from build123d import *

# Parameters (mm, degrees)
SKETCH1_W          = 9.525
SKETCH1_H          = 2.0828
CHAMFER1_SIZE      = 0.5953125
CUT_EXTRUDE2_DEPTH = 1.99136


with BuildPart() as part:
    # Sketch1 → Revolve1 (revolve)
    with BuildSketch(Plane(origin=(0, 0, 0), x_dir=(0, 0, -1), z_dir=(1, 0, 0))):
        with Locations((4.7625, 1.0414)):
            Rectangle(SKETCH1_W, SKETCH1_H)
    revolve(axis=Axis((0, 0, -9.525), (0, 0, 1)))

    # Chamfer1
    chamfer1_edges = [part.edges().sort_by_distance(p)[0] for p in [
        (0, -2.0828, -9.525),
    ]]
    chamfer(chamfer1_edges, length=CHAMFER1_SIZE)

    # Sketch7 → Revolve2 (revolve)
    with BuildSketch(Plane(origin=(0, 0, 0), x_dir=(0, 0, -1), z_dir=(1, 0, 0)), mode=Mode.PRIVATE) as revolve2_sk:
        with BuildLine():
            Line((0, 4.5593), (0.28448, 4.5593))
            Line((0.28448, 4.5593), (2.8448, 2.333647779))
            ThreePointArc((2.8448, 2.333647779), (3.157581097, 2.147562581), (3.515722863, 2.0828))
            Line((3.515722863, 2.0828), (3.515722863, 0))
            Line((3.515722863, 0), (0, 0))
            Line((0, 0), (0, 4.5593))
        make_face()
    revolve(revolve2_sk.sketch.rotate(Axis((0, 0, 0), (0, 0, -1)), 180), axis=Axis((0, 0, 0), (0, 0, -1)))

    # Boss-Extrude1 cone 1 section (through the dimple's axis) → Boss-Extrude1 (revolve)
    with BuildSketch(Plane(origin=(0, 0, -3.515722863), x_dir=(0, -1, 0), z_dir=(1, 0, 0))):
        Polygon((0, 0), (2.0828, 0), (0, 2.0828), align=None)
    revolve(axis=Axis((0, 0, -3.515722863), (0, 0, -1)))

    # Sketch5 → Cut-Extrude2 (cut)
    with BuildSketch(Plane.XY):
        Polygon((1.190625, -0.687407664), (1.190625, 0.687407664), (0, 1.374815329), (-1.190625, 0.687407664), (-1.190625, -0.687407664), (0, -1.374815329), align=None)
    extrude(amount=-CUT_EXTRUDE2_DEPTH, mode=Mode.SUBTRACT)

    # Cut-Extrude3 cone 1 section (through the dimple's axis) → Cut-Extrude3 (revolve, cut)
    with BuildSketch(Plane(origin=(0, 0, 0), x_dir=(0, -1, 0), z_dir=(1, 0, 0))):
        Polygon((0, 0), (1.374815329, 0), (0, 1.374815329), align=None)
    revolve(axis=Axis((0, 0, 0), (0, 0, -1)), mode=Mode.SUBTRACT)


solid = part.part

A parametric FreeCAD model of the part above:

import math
import FreeCAD as App
import Part
import Sketcher

V = App.Vector
Q = App.Units.Quantity


def edges_at(feature, points):
    """Names of the edges that pass closest to the given points."""
    edges = feature.Shape.Edges
    near = lambda p: min(range(len(edges)), key=lambda i: edges[i].distToShape(Part.Vertex(*p))[0])
    return sorted({f"Edge{near(p) + 1}" for p in points})

doc = App.newDocument("Part")
body = doc.addObject("PartDesign::Body", "Body")

# Sketch on YZ plane
sketch1 = doc.addObject("Sketcher::SketchObject", "Sketch")
body.addObject(sketch1)
sketch1.AttachmentSupport = (doc.YZ_Plane, [""])
sketch1.MapMode = "FlatFace"
sketch1.addGeometry(Part.LineSegment(V(2.1, 0, 0), V(0, 0, 0)), False)
sketch1.addGeometry(Part.LineSegment(V(0, 0, 0), V(0, -9.5, 0)), False)
sketch1.addGeometry(Part.LineSegment(V(0, -9.5, 0), V(2.1, -9.5, 0)), False)
sketch1.addGeometry(Part.LineSegment(V(2.1, -9.5, 0), V(2.1, 0, 0)), False)
sketch1.addConstraint(Sketcher.Constraint("Coincident", 0, 2, 1, 1))
sketch1.addConstraint(Sketcher.Constraint("Coincident", 1, 2, 2, 1))
sketch1.addConstraint(Sketcher.Constraint("Coincident", 2, 2, 3, 1))
sketch1.addConstraint(Sketcher.Constraint("Coincident", 3, 2, 0, 1))
sketch1.addConstraint(Sketcher.Constraint("Horizontal", 0))
sketch1.addConstraint(Sketcher.Constraint("Vertical", 1))
sketch1.addConstraint(Sketcher.Constraint("Horizontal", 2))
sketch1.addConstraint(Sketcher.Constraint("Vertical", 3))
sketch1.addConstraint(Sketcher.Constraint("Coincident", 0, 2, -1, 1))
sketch1.addConstraint(Sketcher.Constraint("DistanceX", 0, 2, 0, 1, Q("0.082 in")))
sketch1.addConstraint(Sketcher.Constraint("DistanceY", 1, 2, 1, 1, Q("0.375 in")))
revolution = doc.addObject("PartDesign::Revolution", "Revolution")
body.addObject(revolution)
revolution.Profile = sketch1
revolution.ReferenceAxis = (sketch1, ["V_Axis"])
revolution.Angle = 360
doc.recompute()

chamfer = doc.addObject("PartDesign::Chamfer", "Chamfer")
body.addObject(chamfer)
chamfer.Base = (revolution, edges_at(revolution, [(0, -2.083, -9.525)]))
chamfer.Size = 0.595313

# Sketch on YZ plane
sketch2 = doc.addObject("Sketcher::SketchObject", "Sketch001")
body.addObject(sketch2)
sketch2.AttachmentSupport = (doc.YZ_Plane, [""])
sketch2.MapMode = "FlatFace"
sketch2.addGeometry(Part.LineSegment(V(4.56, -0.28, 0), V(4.56, 0, 0)), False)
sketch2.addGeometry(Part.LineSegment(V(4.56, 0, 0), V(0, 0, 0)), False)
sketch2.addGeometry(Part.LineSegment(V(0, 0, 0), V(0, -3.52, 0)), False)
sketch2.addGeometry(Part.LineSegment(V(0, -3.52, 0), V(2.08, -3.52, 0)), False)
sketch2.addGeometry(Part.ArcOfCircle(Part.Circle(V(3.11, -3.52, 0), V(0, 0, 1), 1.02), math.radians(139), math.radians(180)), False)
sketch2.addGeometry(Part.LineSegment(V(2.33, -2.84, 0), V(4.56, -0.28, 0)), False)
sketch2.addConstraint(Sketcher.Constraint("Coincident", 0, 2, 1, 1))
sketch2.addConstraint(Sketcher.Constraint("Coincident", 1, 2, 2, 1))
sketch2.addConstraint(Sketcher.Constraint("Coincident", 2, 2, 3, 1))
sketch2.addConstraint(Sketcher.Constraint("Coincident", 3, 2, 4, 2))
sketch2.addConstraint(Sketcher.Constraint("Tangent", 4, 1, 5, 1))
sketch2.addConstraint(Sketcher.Constraint("Coincident", 5, 2, 0, 1))
sketch2.addConstraint(Sketcher.Constraint("Vertical", 0))
sketch2.addConstraint(Sketcher.Constraint("Horizontal", 1))
sketch2.addConstraint(Sketcher.Constraint("Vertical", 2))
sketch2.addConstraint(Sketcher.Constraint("Horizontal", 3))
sketch2.addConstraint(Sketcher.Constraint("Coincident", 1, 2, -1, 1))
sketch2.addConstraint(Sketcher.Constraint("Horizontal", 4, 3, 2, 2))
sketch2.addConstraint(Sketcher.Constraint("Angle", 5, Q("49 deg")))
sketch2.addConstraint(Sketcher.Constraint("DistanceX", 3, 1, 3, 2, Q("0.082 in")))
sketch2.addConstraint(Sketcher.Constraint("DistanceX", 1, 2, 1, 1, Q("0.1795 in")))
sketch2.addConstraint(Sketcher.Constraint("DistanceY", 0, 1, 0, 2, Q("0.0112 in")))
sketch2.addConstraint(Sketcher.Constraint("DistanceY", 4, 1, -1, 1, Q("0.112 in")))
revolution2 = doc.addObject("PartDesign::Revolution", "Revolution001")
body.addObject(revolution2)
revolution2.Profile = sketch2
revolution2.ReferenceAxis = (sketch2, ["V_Axis"])
revolution2.Angle = 360

# Sketch on YZ plane
sketch3 = doc.addObject("Sketcher::SketchObject", "Sketch002")
body.addObject(sketch3)
sketch3.AttachmentSupport = (doc.YZ_Plane, [""])
sketch3.MapMode = "FlatFace"
sketch3.addGeometry(Part.LineSegment(V(0, -3.5, 0), V(-2.1, -3.5, 0)), False)
sketch3.addGeometry(Part.LineSegment(V(-2.1, -3.5, 0), V(0, -5.6, 0)), False)
sketch3.addGeometry(Part.LineSegment(V(0, -5.6, 0), V(0, -3.5, 0)), False)
sketch3.addConstraint(Sketcher.Constraint("Coincident", 0, 2, 1, 1))
sketch3.addConstraint(Sketcher.Constraint("Coincident", 1, 2, 2, 1))
sketch3.addConstraint(Sketcher.Constraint("Coincident", 2, 2, 0, 1))
sketch3.addConstraint(Sketcher.Constraint("Horizontal", 0))
sketch3.addConstraint(Sketcher.Constraint("Vertical", 2))
sketch3.addConstraint(Sketcher.Constraint("PointOnObject", 1, 2, -2))
sketch3.addConstraint(Sketcher.Constraint("Equal", 0, 2))
sketch3.addConstraint(Sketcher.Constraint("DistanceX", 0, 2, 0, 1, Q("0.082 in")))
sketch3.addConstraint(Sketcher.Constraint("DistanceY", 0, 2, -1, 1, 3.515723))
revolution3 = doc.addObject("PartDesign::Revolution", "Revolution002")
body.addObject(revolution3)
revolution3.Profile = sketch3
revolution3.ReferenceAxis = (sketch3, ["V_Axis"])
revolution3.Angle = 360

# Sketch on XY plane
sketch4 = doc.addObject("Sketcher::SketchObject", "Sketch003")
body.addObject(sketch4)
sketch4.AttachmentSupport = (doc.XY_Plane, [""])
sketch4.MapMode = "FlatFace"
sketch4.addGeometry(Part.LineSegment(V(1.2, -0.7, 0), V(1.2, 0.7, 0)), False)
sketch4.addGeometry(Part.LineSegment(V(1.2, 0.7, 0), V(0, 1.4, 0)), False)
sketch4.addGeometry(Part.LineSegment(V(0, 1.4, 0), V(-1.2, 0.7, 0)), False)
sketch4.addGeometry(Part.LineSegment(V(-1.2, 0.7, 0), V(-1.2, -0.7, 0)), False)
sketch4.addGeometry(Part.LineSegment(V(-1.2, -0.7, 0), V(0, -1.4, 0)), False)
sketch4.addGeometry(Part.LineSegment(V(0, -1.4, 0), V(1.2, -0.7, 0)), False)
sketch4.addConstraint(Sketcher.Constraint("Coincident", 0, 2, 1, 1))
sketch4.addConstraint(Sketcher.Constraint("Coincident", 1, 2, 2, 1))
sketch4.addConstraint(Sketcher.Constraint("Coincident", 2, 2, 3, 1))
sketch4.addConstraint(Sketcher.Constraint("Coincident", 3, 2, 4, 1))
sketch4.addConstraint(Sketcher.Constraint("Coincident", 4, 2, 5, 1))
sketch4.addConstraint(Sketcher.Constraint("Coincident", 5, 2, 0, 1))
sketch4.addConstraint(Sketcher.Constraint("Vertical", 0))
sketch4.addConstraint(Sketcher.Constraint("Vertical", 3))
sketch4.addConstraint(Sketcher.Constraint("Symmetric", 0, 2, 3, 2, -1, 1))
sketch4.addConstraint(Sketcher.Constraint("Symmetric", 1, 2, 4, 2, -1, 1))
sketch4.addConstraint(Sketcher.Constraint("PointOnObject", 1, 2, -2))
sketch4.addConstraint(Sketcher.Constraint("Parallel", 2, 5))
sketch4.addConstraint(Sketcher.Constraint("Horizontal", 0, 2, 2, 2))
sketch4.addConstraint(Sketcher.Constraint("Angle", 1, Q("150 deg")))
sketch4.addConstraint(Sketcher.Constraint("DistanceX", -1, 1, 0, 2, Q("0.046875 in")))
sketch4.addConstraint(Sketcher.Constraint("DistanceY", 0, 1, 0, 2, 1.374815))
pocket1 = doc.addObject("PartDesign::Pocket", "Pocket")
body.addObject(pocket1)
pocket1.Profile = sketch4
pocket1.Length = Q("0.0784 in")

# Sketch on YZ plane
sketch5 = doc.addObject("Sketcher::SketchObject", "Sketch004")
body.addObject(sketch5)
sketch5.AttachmentSupport = (doc.YZ_Plane, [""])
sketch5.MapMode = "FlatFace"
sketch5.addGeometry(Part.LineSegment(V(0, 0, 0), V(-1.4, 0, 0)), False)
sketch5.addGeometry(Part.LineSegment(V(-1.4, 0, 0), V(0, -1.4, 0)), False)
sketch5.addGeometry(Part.LineSegment(V(0, -1.4, 0), V(0, 0, 0)), False)
sketch5.addConstraint(Sketcher.Constraint("Coincident", 0, 2, 1, 1))
sketch5.addConstraint(Sketcher.Constraint("Coincident", 1, 2, 2, 1))
sketch5.addConstraint(Sketcher.Constraint("Coincident", 2, 2, 0, 1))
sketch5.addConstraint(Sketcher.Constraint("Horizontal", 0))
sketch5.addConstraint(Sketcher.Constraint("Vertical", 2))
sketch5.addConstraint(Sketcher.Constraint("Coincident", 2, 2, -1, 1))
sketch5.addConstraint(Sketcher.Constraint("Equal", 0, 2))
sketch5.addConstraint(Sketcher.Constraint("DistanceX", 0, 2, 0, 1, 1.374815))
groove = doc.addObject("PartDesign::Groove", "Groove")
body.addObject(groove)
groove.Profile = sketch5
groove.ReferenceAxis = (sketch5, ["V_Axis"])
groove.Angle = 360

doc.recompute()
